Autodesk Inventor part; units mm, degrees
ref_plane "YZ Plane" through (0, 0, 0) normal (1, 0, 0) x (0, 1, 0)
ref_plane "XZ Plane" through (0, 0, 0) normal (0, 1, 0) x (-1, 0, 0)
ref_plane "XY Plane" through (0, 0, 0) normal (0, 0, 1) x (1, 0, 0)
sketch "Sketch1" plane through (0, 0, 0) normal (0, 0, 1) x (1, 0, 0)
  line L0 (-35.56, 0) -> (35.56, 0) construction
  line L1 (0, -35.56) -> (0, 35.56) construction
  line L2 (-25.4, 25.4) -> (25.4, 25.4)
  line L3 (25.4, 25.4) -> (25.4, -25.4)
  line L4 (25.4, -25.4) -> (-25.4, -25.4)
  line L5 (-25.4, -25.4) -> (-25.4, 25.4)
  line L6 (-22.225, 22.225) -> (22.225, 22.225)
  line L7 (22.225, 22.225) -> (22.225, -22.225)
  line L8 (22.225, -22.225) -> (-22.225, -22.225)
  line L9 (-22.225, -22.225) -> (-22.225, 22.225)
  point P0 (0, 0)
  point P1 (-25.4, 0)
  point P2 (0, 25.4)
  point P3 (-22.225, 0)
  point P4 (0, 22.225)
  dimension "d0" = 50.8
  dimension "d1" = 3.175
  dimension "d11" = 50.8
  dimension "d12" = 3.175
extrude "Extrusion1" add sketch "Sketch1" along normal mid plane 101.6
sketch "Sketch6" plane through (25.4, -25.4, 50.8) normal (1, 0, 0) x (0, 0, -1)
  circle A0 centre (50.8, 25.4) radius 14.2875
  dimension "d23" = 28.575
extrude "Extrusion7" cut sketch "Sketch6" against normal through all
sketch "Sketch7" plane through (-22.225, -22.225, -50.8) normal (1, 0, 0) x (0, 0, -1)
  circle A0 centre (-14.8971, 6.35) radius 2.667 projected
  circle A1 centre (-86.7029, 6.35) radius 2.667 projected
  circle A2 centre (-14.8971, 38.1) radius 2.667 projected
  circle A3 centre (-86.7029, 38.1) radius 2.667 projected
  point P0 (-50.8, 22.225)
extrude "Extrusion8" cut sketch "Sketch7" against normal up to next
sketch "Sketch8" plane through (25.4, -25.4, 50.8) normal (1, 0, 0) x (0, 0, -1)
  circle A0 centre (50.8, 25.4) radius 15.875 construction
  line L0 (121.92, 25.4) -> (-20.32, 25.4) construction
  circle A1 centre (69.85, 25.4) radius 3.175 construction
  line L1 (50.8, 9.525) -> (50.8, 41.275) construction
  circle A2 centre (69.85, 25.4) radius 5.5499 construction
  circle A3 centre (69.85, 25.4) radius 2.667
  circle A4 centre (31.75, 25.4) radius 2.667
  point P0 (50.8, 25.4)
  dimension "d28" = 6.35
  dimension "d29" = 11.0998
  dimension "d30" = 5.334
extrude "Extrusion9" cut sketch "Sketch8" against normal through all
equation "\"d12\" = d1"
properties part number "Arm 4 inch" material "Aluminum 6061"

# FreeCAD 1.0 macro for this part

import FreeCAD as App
import Part
import Sketcher
from FreeCAD import Vector
Q = App.Units.Quantity

doc = App.newDocument("Part")
body = doc.addObject("PartDesign::Body", "Body")

sketch1 = body.newObject("Sketcher::SketchObject", "Sketch")
sketch1.AttachmentSupport = (doc.getObject("XY_Plane"), [""])
sketch1.MapMode = "FlatFace"
sketch1.addGeometry(Part.LineSegment(Vector(25, 25, 0), Vector(-25, 25, 0)), False)
sketch1.addGeometry(Part.LineSegment(Vector(-25, 25, 0), Vector(-25, -25, 0)), False)
sketch1.addGeometry(Part.LineSegment(Vector(-25, -25, 0), Vector(25, -25, 0)), False)
sketch1.addGeometry(Part.LineSegment(Vector(25, -25, 0), Vector(25, 25, 0)), False)
sketch1.addGeometry(Part.LineSegment(Vector(-22, -22, 0), Vector(-22, 22, 0)), False)
sketch1.addGeometry(Part.LineSegment(Vector(-22, 22, 0), Vector(22, 22, 0)), False)
sketch1.addGeometry(Part.LineSegment(Vector(22, 22, 0), Vector(22, -22, 0)), False)
sketch1.addGeometry(Part.LineSegment(Vector(22, -22, 0), Vector(-22, -22, 0)), False)
sketch1.addConstraint(Sketcher.Constraint("Coincident", 0, 2, 1, 1))
sketch1.addConstraint(Sketcher.Constraint("Coincident", 1, 2, 2, 1))
sketch1.addConstraint(Sketcher.Constraint("Coincident", 2, 2, 3, 1))
sketch1.addConstraint(Sketcher.Constraint("Coincident", 3, 2, 0, 1))
sketch1.addConstraint(Sketcher.Constraint("Coincident", 4, 2, 5, 1))
sketch1.addConstraint(Sketcher.Constraint("Coincident", 5, 2, 6, 1))
sketch1.addConstraint(Sketcher.Constraint("Coincident", 6, 2, 7, 1))
sketch1.addConstraint(Sketcher.Constraint("Coincident", 7, 2, 4, 1))
sketch1.addConstraint(Sketcher.Constraint("Horizontal", 0))
sketch1.addConstraint(Sketcher.Constraint("Vertical", 1))
sketch1.addConstraint(Sketcher.Constraint("Horizontal", 2))
sketch1.addConstraint(Sketcher.Constraint("Vertical", 3))
sketch1.addConstraint(Sketcher.Constraint("Vertical", 4))
sketch1.addConstraint(Sketcher.Constraint("Horizontal", 5))
sketch1.addConstraint(Sketcher.Constraint("Vertical", 6))
sketch1.addConstraint(Sketcher.Constraint("Horizontal", 7))
sketch1.addConstraint(Sketcher.Constraint("Symmetric", 0, 2, 2, 2, -1, 1))
sketch1.addConstraint(Sketcher.Constraint("Symmetric", 4, 2, 6, 2, -1, 1))
sketch1.addConstraint(Sketcher.Constraint("Equal", 2, 1))
sketch1.addConstraint(Sketcher.Constraint("Equal", 7, 4))
sketch1.addConstraint(Sketcher.Constraint("DistanceX", 0, 2, 0, 1, Q("2 in")))
sketch1.addConstraint(Sketcher.Constraint("DistanceX", 0, 2, 4, 2, Q("0.125 in")))
pad1 = body.newObject("PartDesign::Pad", "Pad")
pad1.Profile = sketch1
pad1.Length = Q("4 in")
pad1.Midplane = True

sketch2 = body.newObject("Sketcher::SketchObject", "Sketch001")
sketch2.AttachmentSupport = (doc.getObject("YZ_Plane"), [""])
sketch2.MapMode = "FlatFace"
sketch2.AttachmentOffset = App.Placement(Vector(0, 0, 1 * 25.4), App.Rotation())
sketch2.addGeometry(Part.Circle(Vector(0, 0, 0), Vector(0, 0, 1), 14), False)
sketch2.addConstraint(Sketcher.Constraint("Coincident", 0, 3, -1, 1))
sketch2.addConstraint(Sketcher.Constraint("Diameter", 0, Q("1.125 in")))
pocket1 = body.newObject("PartDesign::Pocket", "Pocket")
pocket1.Profile = sketch2
pocket1.Type = "ThroughAll"

sketch3 = body.newObject("Sketcher::SketchObject", "Sketch002")
sketch3.AttachmentSupport = (doc.getObject("YZ_Plane"), [""])
sketch3.MapMode = "FlatFace"
sketch3.AttachmentOffset = App.Placement(Vector(0, 0, -0.875 * 25.4), App.Rotation())
sketch3.addGeometry(Part.Circle(Vector(-15.9, -35.9, 0), Vector(0, 0, 1), 2.7), False)
sketch3.addGeometry(Part.Circle(Vector(-15.9, 35.9, 0), Vector(0, 0, 1), 2.7), False)
sketch3.addGeometry(Part.Circle(Vector(15.9, -35.9, 0), Vector(0, 0, 1), 2.7), False)
sketch3.addGeometry(Part.Circle(Vector(15.9, 35.9, 0), Vector(0, 0, 1), 2.7), False)
sketch3.addConstraint(Sketcher.Constraint("Equal", 0, 1))
sketch3.addConstraint(Sketcher.Constraint("Equal", 1, 2))
sketch3.addConstraint(Sketcher.Constraint("Equal", 2, 3))
sketch3.addConstraint(Sketcher.Constraint("Symmetric", 1, 3, 2, 3, -1, 1))
sketch3.addConstraint(Sketcher.Constraint("Symmetric", 0, 3, 3, 3, -1, 1))
sketch3.addConstraint(Sketcher.Constraint("Symmetric", 0, 3, 2, 3, -2))
sketch3.addConstraint(Sketcher.Constraint("Diameter", 0, Q("0.21 in")))
sketch3.addConstraint(Sketcher.Constraint("DistanceX", 0, 3, 2, 3, Q("1.25 in")))
sketch3.addConstraint(Sketcher.Constraint("DistanceY", 0, 3, 1, 3, Q("2.827 in")))
pocket2 = body.newObject("PartDesign::Pocket", "Pocket001")
pocket2.Profile = sketch3
pocket2.Length = Q("0.125 in")

sketch4 = body.newObject("Sketcher::SketchObject", "Sketch003")
sketch4.AttachmentSupport = (doc.getObject("YZ_Plane"), [""])
sketch4.MapMode = "FlatFace"
sketch4.AttachmentOffset = App.Placement(Vector(0, 0, 1 * 25.4), App.Rotation())
sketch4.addGeometry(Part.Circle(Vector(0, -19.1, 0), Vector(0, 0, 1), 2.7), False)
sketch4.addGeometry(Part.Circle(Vector(0, 19.1, 0), Vector(0, 0, 1), 2.7), False)
sketch4.addConstraint(Sketcher.Constraint("Equal", 0, 1))
sketch4.addConstraint(Sketcher.Constraint("Symmetric", 0, 3, 1, 3, -1, 1))
sketch4.addConstraint(Sketcher.Constraint("PointOnObject", 0, 3, -2))
sketch4.addConstraint(Sketcher.Constraint("Diameter", 0, Q("0.21 in")))
sketch4.addConstraint(Sketcher.Constraint("DistanceY", 0, 3, 1, 3, Q("1.5 in")))
pocket3 = body.newObject("PartDesign::Pocket", "Pocket002")
pocket3.Profile = sketch4
pocket3.Type = "ThroughAll"

doc.recompute()
